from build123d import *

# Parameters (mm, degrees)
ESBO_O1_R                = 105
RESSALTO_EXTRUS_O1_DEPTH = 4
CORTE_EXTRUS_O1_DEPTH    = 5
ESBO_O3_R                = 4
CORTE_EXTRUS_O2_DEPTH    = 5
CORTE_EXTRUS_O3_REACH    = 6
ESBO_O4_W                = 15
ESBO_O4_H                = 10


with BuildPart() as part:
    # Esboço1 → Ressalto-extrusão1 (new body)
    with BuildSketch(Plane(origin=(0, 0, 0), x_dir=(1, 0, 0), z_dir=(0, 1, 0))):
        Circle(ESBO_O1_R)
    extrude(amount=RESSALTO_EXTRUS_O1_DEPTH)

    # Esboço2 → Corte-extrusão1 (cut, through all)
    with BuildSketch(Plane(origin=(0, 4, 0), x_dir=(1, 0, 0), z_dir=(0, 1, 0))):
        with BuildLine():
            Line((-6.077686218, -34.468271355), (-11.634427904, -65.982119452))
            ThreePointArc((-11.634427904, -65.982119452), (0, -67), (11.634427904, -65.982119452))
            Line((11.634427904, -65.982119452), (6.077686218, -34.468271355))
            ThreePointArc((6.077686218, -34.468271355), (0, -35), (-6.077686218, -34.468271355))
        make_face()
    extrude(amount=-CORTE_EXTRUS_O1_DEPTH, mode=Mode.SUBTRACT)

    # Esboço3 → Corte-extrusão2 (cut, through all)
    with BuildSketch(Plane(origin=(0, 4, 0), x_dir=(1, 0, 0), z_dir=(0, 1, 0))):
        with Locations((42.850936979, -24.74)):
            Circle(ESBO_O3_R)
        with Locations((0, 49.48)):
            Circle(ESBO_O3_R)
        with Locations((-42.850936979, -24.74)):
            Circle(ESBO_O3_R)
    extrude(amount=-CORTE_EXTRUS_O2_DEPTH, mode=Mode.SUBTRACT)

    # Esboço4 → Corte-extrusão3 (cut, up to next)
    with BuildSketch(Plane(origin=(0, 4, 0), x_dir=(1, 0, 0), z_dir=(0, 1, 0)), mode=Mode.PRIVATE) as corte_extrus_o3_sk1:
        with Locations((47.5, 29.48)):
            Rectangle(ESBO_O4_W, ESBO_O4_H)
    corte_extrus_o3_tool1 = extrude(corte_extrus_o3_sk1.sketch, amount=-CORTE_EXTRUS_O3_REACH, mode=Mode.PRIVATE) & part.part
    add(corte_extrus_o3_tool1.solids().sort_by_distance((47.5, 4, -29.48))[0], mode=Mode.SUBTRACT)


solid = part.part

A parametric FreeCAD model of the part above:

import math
import FreeCAD as App
import Part
import Sketcher
Q = App.Units.Quantity


def add_polygon(sketch, points):
    """Adds a closed chain of lines whose ends are joined by coincident constraints."""
    first, n = sketch.GeometryCount, len(points)
    for a, b in zip(points, points[1:] + points[:1]):
        sketch.addGeometry(Part.LineSegment(App.Vector(*a, 0), App.Vector(*b, 0)), False)
    for i in range(n):
        sketch.addConstraint(Sketcher.Constraint("Coincident", first + i, 2, first + (i + 1) % n, 1))

doc = App.newDocument("Part")
body = doc.addObject("PartDesign::Body", "Body")

sketch1 = body.newObject("Sketcher::SketchObject", "Sketch")
sketch1.AttachmentSupport = (doc.getObject("XZ_Plane"), [""])
sketch1.MapMode = "FlatFace"
sketch1.addGeometry(Part.Circle(App.Vector(0, 0, 0), App.Vector(0, 0, 1), 105), False)
sketch1.addConstraint([
    Sketcher.Constraint("Coincident", 0, 3, -1, 1),
    Sketcher.Constraint("Diameter", 0, 210.0),
])
pad1 = body.newObject("PartDesign::Pad", "Pad")
pad1.Profile = sketch1
pad1.Length = 4
pad1.Reversed = True

sketch2 = body.newObject("Sketcher::SketchObject", "Sketch001")
sketch2.AttachmentSupport = (doc.getObject("XZ_Plane"), [""])
sketch2.MapMode = "FlatFace"
sketch2.AttachmentOffset = App.Placement(App.Vector(0, 0, -4), App.Rotation())
sketch2.addGeometry([
    Part.LineSegment(App.Vector(-6.077686, 34.468271, 0), App.Vector(-11.634428, 65.982119, 0)),
    Part.ArcOfCircle(Part.Circle(App.Vector(0, 0, 0), App.Vector(0, 0, 1), 67), math.radians(80), math.radians(100)),
    Part.LineSegment(App.Vector(11.634428, 65.982119, 0), App.Vector(6.077686, 34.468271, 0)),
    Part.ArcOfCircle(Part.Circle(App.Vector(0, 0, 0), App.Vector(0, 0, 1), 35), math.radians(80), math.radians(100)),
], False)
sketch2.addConstraint([
    Sketcher.Constraint("Coincident", 0, 2, 1, 2),
    Sketcher.Constraint("Coincident", 1, 1, 2, 1),
    Sketcher.Constraint("Coincident", 2, 2, 3, 1),
    Sketcher.Constraint("Coincident", 3, 2, 0, 1),
    Sketcher.Constraint("Coincident", 1, 3, -1, 1),
    Sketcher.Constraint("Coincident", 3, 3, -1, 1),
    Sketcher.Constraint("Horizontal", 0, 2, 1, 1),
    Sketcher.Constraint("Horizontal", 2, 2, 3, 2),
    Sketcher.Constraint("Radius", 1, 67.0),
    Sketcher.Constraint("Radius", 3, 35.0),
    Sketcher.Constraint("Angle", 0, Q("100 deg")),
    Sketcher.Constraint("DistanceY", -1, 1, 0, 2, 65.982119),
])
pocket1 = body.newObject("PartDesign::Pocket", "Pocket")
pocket1.Profile = sketch2
pocket1.Type = "ThroughAll"
pocket1.Reversed = True

sketch3 = body.newObject("Sketcher::SketchObject", "Sketch002")
sketch3.AttachmentSupport = (doc.getObject("XZ_Plane"), [""])
sketch3.MapMode = "FlatFace"
sketch3.AttachmentOffset = App.Placement(App.Vector(0, 0, -4), App.Rotation())
sketch3.addGeometry([
    Part.Circle(App.Vector(42.850937, 24.74, 0), App.Vector(0, 0, 1), 4),
    Part.Circle(App.Vector(0, -49.48, 0), App.Vector(0, 0, 1), 4),
    Part.Circle(App.Vector(-42.850937, 24.74, 0), App.Vector(0, 0, 1), 4),
], False)
sketch3.addConstraint([
    Sketcher.Constraint("Equal", 0, 1),
    Sketcher.Constraint("Equal", 1, 2),
    Sketcher.Constraint("Symmetric", 0, 3, 2, 3, -2),
    Sketcher.Constraint("PointOnObject", 1, 3, -2),
    Sketcher.Constraint("Diameter", 0, 8.0),
    Sketcher.Constraint("DistanceY", -1, 1, 0, 3, 24.74),
    Sketcher.Constraint("DistanceY", 1, 3, -1, 1, 49.48),
    Sketcher.Constraint("DistanceX", -1, 1, 0, 3, 42.850937),
])
pocket2 = body.newObject("PartDesign::Pocket", "Pocket001")
pocket2.Profile = sketch3
pocket2.Type = "ThroughAll"
pocket2.Reversed = True

sketch4 = body.newObject("Sketcher::SketchObject", "Sketch003")
sketch4.AttachmentSupport = (doc.getObject("XZ_Plane"), [""])
sketch4.MapMode = "FlatFace"
sketch4.AttachmentOffset = App.Placement(App.Vector(0, 0, -4), App.Rotation())
add_polygon(sketch4, [(40, -34.48), (40, -24.48), (55, -24.48), (55, -34.48)])
sketch4.addConstraint([
    Sketcher.Constraint("Vertical", 0),
    Sketcher.Constraint("Horizontal", 1),
    Sketcher.Constraint("Vertical", 2),
    Sketcher.Constraint("Horizontal", 3),
    Sketcher.Constraint("DistanceX", 1, 1, 1, 2, 15.0),
    Sketcher.Constraint("DistanceY", 0, 1, 0, 2, 10.0),
    Sketcher.Constraint("DistanceX", -1, 1, 0, 2, 40.0),
    Sketcher.Constraint("DistanceY", 0, 2, -1, 1, 24.48),
])
pocket3 = body.newObject("PartDesign::Pocket", "Pocket002")
pocket3.Profile = sketch4
pocket3.Type = "UpToFirst"
pocket3.Reversed = True

doc.recompute()
